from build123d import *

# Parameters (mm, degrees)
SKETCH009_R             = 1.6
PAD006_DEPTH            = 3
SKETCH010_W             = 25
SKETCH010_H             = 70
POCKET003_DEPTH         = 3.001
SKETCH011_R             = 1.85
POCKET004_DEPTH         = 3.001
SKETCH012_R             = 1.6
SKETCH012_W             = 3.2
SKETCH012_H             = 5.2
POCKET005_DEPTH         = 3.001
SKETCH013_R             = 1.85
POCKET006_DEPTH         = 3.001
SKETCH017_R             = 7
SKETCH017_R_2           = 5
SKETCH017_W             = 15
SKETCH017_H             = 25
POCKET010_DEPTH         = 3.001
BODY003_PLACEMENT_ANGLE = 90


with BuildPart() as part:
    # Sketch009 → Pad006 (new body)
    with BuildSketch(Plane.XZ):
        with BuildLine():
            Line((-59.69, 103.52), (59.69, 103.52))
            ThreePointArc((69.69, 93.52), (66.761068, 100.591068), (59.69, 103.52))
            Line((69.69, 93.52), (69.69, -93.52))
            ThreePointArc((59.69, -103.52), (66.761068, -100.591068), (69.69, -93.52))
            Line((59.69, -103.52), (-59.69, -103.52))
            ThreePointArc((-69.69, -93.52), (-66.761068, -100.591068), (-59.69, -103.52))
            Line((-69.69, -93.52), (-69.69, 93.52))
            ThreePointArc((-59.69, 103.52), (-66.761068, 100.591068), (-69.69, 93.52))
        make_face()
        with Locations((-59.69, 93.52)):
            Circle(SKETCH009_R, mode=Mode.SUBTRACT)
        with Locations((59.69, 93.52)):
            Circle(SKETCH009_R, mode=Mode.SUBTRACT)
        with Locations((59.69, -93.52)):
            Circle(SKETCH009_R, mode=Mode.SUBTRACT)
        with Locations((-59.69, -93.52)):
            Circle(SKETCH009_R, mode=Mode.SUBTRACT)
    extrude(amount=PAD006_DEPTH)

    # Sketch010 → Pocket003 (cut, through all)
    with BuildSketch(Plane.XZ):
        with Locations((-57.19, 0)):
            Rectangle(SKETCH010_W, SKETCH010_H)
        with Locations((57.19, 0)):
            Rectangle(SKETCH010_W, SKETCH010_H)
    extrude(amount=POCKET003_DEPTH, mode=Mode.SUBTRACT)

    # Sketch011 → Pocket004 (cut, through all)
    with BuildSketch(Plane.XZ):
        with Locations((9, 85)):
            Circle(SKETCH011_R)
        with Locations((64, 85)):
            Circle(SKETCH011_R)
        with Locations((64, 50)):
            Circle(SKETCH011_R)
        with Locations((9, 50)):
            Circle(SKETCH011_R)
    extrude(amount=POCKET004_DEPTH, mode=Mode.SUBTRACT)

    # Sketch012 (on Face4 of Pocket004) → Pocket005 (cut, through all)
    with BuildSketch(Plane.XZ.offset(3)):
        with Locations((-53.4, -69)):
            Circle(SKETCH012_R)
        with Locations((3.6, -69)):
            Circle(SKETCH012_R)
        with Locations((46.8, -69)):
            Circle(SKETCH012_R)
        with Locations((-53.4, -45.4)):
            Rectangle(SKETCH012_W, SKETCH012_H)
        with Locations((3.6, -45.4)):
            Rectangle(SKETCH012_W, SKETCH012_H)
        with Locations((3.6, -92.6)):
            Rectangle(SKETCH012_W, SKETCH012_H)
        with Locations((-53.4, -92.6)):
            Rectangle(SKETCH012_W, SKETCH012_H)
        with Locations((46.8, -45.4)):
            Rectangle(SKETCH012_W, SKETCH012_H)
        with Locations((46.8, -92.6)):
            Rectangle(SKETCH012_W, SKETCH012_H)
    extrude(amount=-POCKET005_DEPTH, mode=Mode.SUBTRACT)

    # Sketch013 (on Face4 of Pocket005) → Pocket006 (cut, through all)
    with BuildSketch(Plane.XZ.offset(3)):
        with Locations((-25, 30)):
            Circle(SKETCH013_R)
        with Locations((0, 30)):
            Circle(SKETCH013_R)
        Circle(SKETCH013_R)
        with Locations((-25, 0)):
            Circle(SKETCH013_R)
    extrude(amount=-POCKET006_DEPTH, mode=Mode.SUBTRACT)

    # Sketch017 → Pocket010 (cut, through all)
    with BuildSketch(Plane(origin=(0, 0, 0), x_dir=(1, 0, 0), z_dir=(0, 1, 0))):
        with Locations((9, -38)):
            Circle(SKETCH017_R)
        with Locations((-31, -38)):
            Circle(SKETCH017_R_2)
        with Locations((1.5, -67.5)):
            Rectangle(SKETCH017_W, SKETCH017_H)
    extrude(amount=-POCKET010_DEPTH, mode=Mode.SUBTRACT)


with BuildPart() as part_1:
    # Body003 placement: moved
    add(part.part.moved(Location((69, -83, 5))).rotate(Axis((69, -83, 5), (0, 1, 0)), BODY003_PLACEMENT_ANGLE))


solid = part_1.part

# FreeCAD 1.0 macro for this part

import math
import FreeCAD as App
import Part
import Sketcher
from FreeCAD import Vector

doc = App.newDocument("Part")
params = doc.addObject("Spreadsheet::Sheet", "Params")
for row, (alias, value) in enumerate([
    ("sketch1_radius", "9.999999 mm"),
    ("sketch1_diameter", "3.2 mm"),
    ("sketch1_width", "119.38 mm"),
    ("sketch1_height", "187.04 mm"),
    ("pad1_length", "3 mm"),
    ("sketch2_width", "25 mm"),
    ("sketch2_height", "70 mm"),
    ("sketch3_diameter", "3.7 mm"),
    ("sketch4_diameter", "3.2 mm"),
    ("sketch4_width", "3.2 mm"),
    ("sketch4_height", "5.2 mm"),
    ("sketch5_diameter", "3.7 mm"),
    ("sketch6_diameter", "14 mm"),
    ("sketch6_diameter2", "10 mm"),
    ("sketch6_width", "15 mm"),
    ("sketch6_height", "25 mm"),
], start=1):
    params.set(f"A{row}", alias)
    params.set(f"B{row}", "=" + value)
    params.setAlias(f"B{row}", alias)

body = doc.addObject("PartDesign::Body", "Body")

sketch1 = doc.addObject("Sketcher::SketchObject", "Sketch")
body.addObject(sketch1)
sketch1.AttachmentSupport = (doc.XZ_Plane, [""])
sketch1.MapMode = "FlatFace"
sketch1.addGeometry(Part.LineSegment(Vector(59.7, 103.5, 0), Vector(-59.7, 103.5, 0)), False)
sketch1.addGeometry(Part.ArcOfCircle(Part.Circle(Vector(-59.7, 93.5, 0), Vector(0, 0, 1), 10), math.radians(90), math.radians(180)), False)
sketch1.addGeometry(Part.LineSegment(Vector(-69.7, 93.5, 0), Vector(-69.7, -93.5, 0)), False)
sketch1.addGeometry(Part.ArcOfCircle(Part.Circle(Vector(-59.7, -93.5, 0), Vector(0, 0, 1), 10), math.radians(180), math.radians(270)), False)
sketch1.addGeometry(Part.LineSegment(Vector(-59.7, -103.5, 0), Vector(59.7, -103.5, 0)), False)
sketch1.addGeometry(Part.ArcOfCircle(Part.Circle(Vector(59.7, -93.5, 0), Vector(0, 0, 1), 10), math.radians(-90), math.radians(0)), False)
sketch1.addGeometry(Part.LineSegment(Vector(69.7, -93.5, 0), Vector(69.7, 93.5, 0)), False)
sketch1.addGeometry(Part.ArcOfCircle(Part.Circle(Vector(59.7, 93.5, 0), Vector(0, 0, 1), 10), math.radians(0), math.radians(90)), False)
sketch1.addGeometry(Part.Circle(Vector(59.7, -93.5, 0), Vector(0, 0, 1), 1.6), False)
sketch1.addGeometry(Part.Circle(Vector(-59.7, -93.5, 0), Vector(0, 0, 1), 1.6), False)
sketch1.addGeometry(Part.Circle(Vector(59.7, 93.5, 0), Vector(0, 0, 1), 1.6), False)
sketch1.addGeometry(Part.Circle(Vector(-59.7, 93.5, 0), Vector(0, 0, 1), 1.6), False)
sketch1.addConstraint(Sketcher.Constraint("Tangent", 0, 2, 1, 1))
sketch1.addConstraint(Sketcher.Constraint("Tangent", 1, 2, 2, 1))
sketch1.addConstraint(Sketcher.Constraint("Tangent", 2, 2, 3, 1))
sketch1.addConstraint(Sketcher.Constraint("Tangent", 3, 2, 4, 1))
sketch1.addConstraint(Sketcher.Constraint("Tangent", 4, 2, 5, 1))
sketch1.addConstraint(Sketcher.Constraint("Tangent", 5, 2, 6, 1))
sketch1.addConstraint(Sketcher.Constraint("Tangent", 6, 2, 7, 1))
sketch1.addConstraint(Sketcher.Constraint("Tangent", 7, 2, 0, 1))
sketch1.addConstraint(Sketcher.Constraint("Horizontal", 0))
sketch1.addConstraint(Sketcher.Constraint("Vertical", 2))
sketch1.addConstraint(Sketcher.Constraint("Horizontal", 4))
sketch1.addConstraint(Sketcher.Constraint("Vertical", 6))
sketch1.addConstraint(Sketcher.Constraint("Coincident", 8, 3, 5, 3))
sketch1.addConstraint(Sketcher.Constraint("Coincident", 9, 3, 3, 3))
sketch1.addConstraint(Sketcher.Constraint("Coincident", 10, 3, 7, 3))
sketch1.addConstraint(Sketcher.Constraint("Coincident", 11, 3, 1, 3))
sketch1.addConstraint(Sketcher.Constraint("Equal", 1, 3))
sketch1.addConstraint(Sketcher.Constraint("Equal", 3, 5))
sketch1.addConstraint(Sketcher.Constraint("Equal", 5, 7))
sketch1.addConstraint(Sketcher.Constraint("Equal", 8, 9))
sketch1.addConstraint(Sketcher.Constraint("Equal", 9, 10))
sketch1.addConstraint(Sketcher.Constraint("Equal", 10, 11))
sketch1.addConstraint(Sketcher.Constraint("Symmetric", 1, 3, 5, 3, -1, 1))
sketch1.addConstraint(Sketcher.Constraint("Radius", 1, 9.999999))
sketch1.addConstraint(Sketcher.Constraint("Diameter", 8, 3.2))
sketch1.addConstraint(Sketcher.Constraint("DistanceX", 0, 2, 0, 1, 119.38))
sketch1.addConstraint(Sketcher.Constraint("DistanceY", 2, 2, 2, 1, 187.04))
sketch1.setExpression("Constraints[23]", "Params.sketch1_radius")
sketch1.setExpression("Constraints[24]", "Params.sketch1_diameter")
sketch1.setExpression("Constraints[25]", "Params.sketch1_width")
sketch1.setExpression("Constraints[26]", "Params.sketch1_height")
pad1 = doc.addObject("PartDesign::Pad", "Pad")
body.addObject(pad1)
pad1.Profile = sketch1
pad1.setExpression("Length", "Params.pad1_length")

sketch2 = doc.addObject("Sketcher::SketchObject", "Sketch001")
body.addObject(sketch2)
sketch2.AttachmentSupport = (doc.XZ_Plane, [""])
sketch2.MapMode = "FlatFace"
sketch2.addGeometry(Part.LineSegment(Vector(-70, 35, 0), Vector(-70, -35, 0)), False)
sketch2.addGeometry(Part.LineSegment(Vector(-70, -35, 0), Vector(-45, -35, 0)), False)
sketch2.addGeometry(Part.LineSegment(Vector(-45, -35, 0), Vector(-45, 35, 0)), False)
sketch2.addGeometry(Part.LineSegment(Vector(-45, 35, 0), Vector(-70, 35, 0)), False)
sketch2.addGeometry(Part.LineSegment(Vector(45, 35, 0), Vector(45, -35, 0)), False)
sketch2.addGeometry(Part.LineSegment(Vector(45, -35, 0), Vector(70, -35, 0)), False)
sketch2.addGeometry(Part.LineSegment(Vector(70, -35, 0), Vector(70, 35, 0)), False)
sketch2.addGeometry(Part.LineSegment(Vector(70, 35, 0), Vector(45, 35, 0)), False)
sketch2.addConstraint(Sketcher.Constraint("Coincident", 0, 2, 1, 1))
sketch2.addConstraint(Sketcher.Constraint("Coincident", 1, 2, 2, 1))
sketch2.addConstraint(Sketcher.Constraint("Coincident", 2, 2, 3, 1))
sketch2.addConstraint(Sketcher.Constraint("Coincident", 3, 2, 0, 1))
sketch2.addConstraint(Sketcher.Constraint("Coincident", 4, 2, 5, 1))
sketch2.addConstraint(Sketcher.Constraint("Coincident", 5, 2, 6, 1))
sketch2.addConstraint(Sketcher.Constraint("Coincident", 6, 2, 7, 1))
sketch2.addConstraint(Sketcher.Constraint("Coincident", 7, 2, 4, 1))
sketch2.addConstraint(Sketcher.Constraint("Vertical", 0))
sketch2.addConstraint(Sketcher.Constraint("Horizontal", 1))
sketch2.addConstraint(Sketcher.Constraint("Vertical", 2))
sketch2.addConstraint(Sketcher.Constraint("Horizontal", 3))
sketch2.addConstraint(Sketcher.Constraint("Vertical", 4))
sketch2.addConstraint(Sketcher.Constraint("Horizontal", 5))
sketch2.addConstraint(Sketcher.Constraint("Vertical", 6))
sketch2.addConstraint(Sketcher.Constraint("Horizontal", 7))
sketch2.addConstraint(Sketcher.Constraint("Symmetric", 2, 2, 4, 2, -1, 1))
sketch2.addConstraint(Sketcher.Constraint("Symmetric", 0, 2, 6, 2, -1, 1))
sketch2.addConstraint(Sketcher.Constraint("Horizontal", 1, 2, 4, 2))
sketch2.addConstraint(Sketcher.Constraint("DistanceX", 1, 1, 1, 2, 25.0))
sketch2.addConstraint(Sketcher.Constraint("DistanceY", 0, 2, 0, 1, 70.0))
sketch2.addConstraint(Sketcher.Constraint("DistanceX", 0, 2, -1, 1, 69.69))
sketch2.setExpression("Constraints[19]", "Params.sketch2_width")
sketch2.setExpression("Constraints[20]", "Params.sketch2_height")
pocket1 = doc.addObject("PartDesign::Pocket", "Pocket")
body.addObject(pocket1)
pocket1.Profile = sketch2
pocket1.Type = "ThroughAll"
pocket1.Reversed = True

sketch3 = doc.addObject("Sketcher::SketchObject", "Sketch002")
body.addObject(sketch3)
sketch3.AttachmentSupport = (doc.XZ_Plane, [""])
sketch3.MapMode = "FlatFace"
sketch3.addGeometry(Part.Circle(Vector(9, 85, 0), Vector(0, 0, 1), 1.9), False)
sketch3.addGeometry(Part.Circle(Vector(64, 85, 0), Vector(0, 0, 1), 1.9), False)
sketch3.addGeometry(Part.Circle(Vector(64, 50, 0), Vector(0, 0, 1), 1.9), False)
sketch3.addGeometry(Part.Circle(Vector(9, 50, 0), Vector(0, 0, 1), 1.9), False)
sketch3.addConstraint(Sketcher.Constraint("Equal", 0, 1))
sketch3.addConstraint(Sketcher.Constraint("Equal", 1, 2))
sketch3.addConstraint(Sketcher.Constraint("Equal", 2, 3))
sketch3.addConstraint(Sketcher.Constraint("Horizontal", 0, 3, 1, 3))
sketch3.addConstraint(Sketcher.Constraint("Horizontal", 2, 3, 3, 3))
sketch3.addConstraint(Sketcher.Constraint("Vertical", 1, 3, 2, 3))
sketch3.addConstraint(Sketcher.Constraint("Vertical", 0, 3, 3, 3))
sketch3.addConstraint(Sketcher.Constraint("Diameter", 0, 3.7))
sketch3.addConstraint(Sketcher.Constraint("DistanceX", -1, 1, 0, 3, 9.0))
sketch3.addConstraint(Sketcher.Constraint("DistanceY", -1, 1, 0, 3, 85.0))
sketch3.addConstraint(Sketcher.Constraint("DistanceX", -1, 1, 1, 3, 64.0))
sketch3.addConstraint(Sketcher.Constraint("DistanceY", -1, 1, 2, 3, 50.0))
sketch3.setExpression("Constraints[7]", "Params.sketch3_diameter")
pocket2 = doc.addObject("PartDesign::Pocket", "Pocket001")
body.addObject(pocket2)
pocket2.Profile = sketch3
pocket2.Type = "ThroughAll"
pocket2.Reversed = True

sketch4 = doc.addObject("Sketcher::SketchObject", "Sketch003")
body.addObject(sketch4)
sketch4.AttachmentSupport = (doc.XZ_Plane, [""])
sketch4.MapMode = "FlatFace"
sketch4.AttachmentOffset = App.Placement(Vector(0, 0, 3), App.Rotation())
sketch4.addGeometry(Part.Circle(Vector(-53.4, -69, 0), Vector(0, 0, 1), 1.6), False)
sketch4.addGeometry(Part.Circle(Vector(3.6, -69, 0), Vector(0, 0, 1), 1.6), False)
sketch4.addGeometry(Part.Circle(Vector(46.8, -69, 0), Vector(0, 0, 1), 1.6), False)
sketch4.addGeometry(Part.LineSegment(Vector(-55, -42.8, 0), Vector(-55, -48, 0)), False)
sketch4.addGeometry(Part.LineSegment(Vector(-55, -48, 0), Vector(-51.8, -48, 0)), False)
sketch4.addGeometry(Part.LineSegment(Vector(-51.8, -48, 0), Vector(-51.8, -42.8, 0)), False)
sketch4.addGeometry(Part.LineSegment(Vector(-51.8, -42.8, 0), Vector(-55, -42.8, 0)), False)
sketch4.addGeometry(Part.LineSegment(Vector(2, -42.8, 0), Vector(2, -48, 0)), False)
sketch4.addGeometry(Part.LineSegment(Vector(2, -48, 0), Vector(5.2, -48, 0)), False)
sketch4.addGeometry(Part.LineSegment(Vector(5.2, -48, 0), Vector(5.2, -42.8, 0)), False)
sketch4.addGeometry(Part.LineSegment(Vector(5.2, -42.8, 0), Vector(2, -42.8, 0)), False)
sketch4.addGeometry(Part.LineSegment(Vector(2, -90, 0), Vector(2, -95.2, 0)), False)
sketch4.addGeometry(Part.LineSegment(Vector(2, -95.2, 0), Vector(5.2, -95.2, 0)), False)
sketch4.addGeometry(Part.LineSegment(Vector(5.2, -95.2, 0), Vector(5.2, -90, 0)), False)
sketch4.addGeometry(Part.LineSegment(Vector(5.2, -90, 0), Vector(2, -90, 0)), False)
sketch4.addGeometry(Part.LineSegment(Vector(-55, -90, 0), Vector(-55, -95.2, 0)), False)
sketch4.addGeometry(Part.LineSegment(Vector(-55, -95.2, 0), Vector(-51.8, -95.2, 0)), False)
sketch4.addGeometry(Part.LineSegment(Vector(-51.8, -95.2, 0), Vector(-51.8, -90, 0)), False)
sketch4.addGeometry(Part.LineSegment(Vector(-51.8, -90, 0), Vector(-55, -90, 0)), False)
sketch4.addGeometry(Part.LineSegment(Vector(45.2, -42.8, 0), Vector(45.2, -48, 0)), False)
sketch4.addGeometry(Part.LineSegment(Vector(45.2, -48, 0), Vector(48.4, -48, 0)), False)
sketch4.addGeometry(Part.LineSegment(Vector(48.4, -48, 0), Vector(48.4, -42.8, 0)), False)
sketch4.addGeometry(Part.LineSegment(Vector(48.4, -42.8, 0), Vector(45.2, -42.8, 0)), False)
sketch4.addGeometry(Part.LineSegment(Vector(45.2, -90, 0), Vector(45.2, -95.2, 0)), False)
sketch4.addGeometry(Part.LineSegment(Vector(45.2, -95.2, 0), Vector(48.4, -95.2, 0)), False)
sketch4.addGeometry(Part.LineSegment(Vector(48.4, -95.2, 0), Vector(48.4, -90, 0)), False)
sketch4.addGeometry(Part.LineSegment(Vector(48.4, -90, 0), Vector(45.2, -90, 0)), False)
sketch4.addConstraint(Sketcher.Constraint("Coincident", 3, 2, 4, 1))
sketch4.addConstraint(Sketcher.Constraint("Coincident", 4, 2, 5, 1))
sketch4.addConstraint(Sketcher.Constraint("Coincident", 5, 2, 6, 1))
sketch4.addConstraint(Sketcher.Constraint("Coincident", 6, 2, 3, 1))
sketch4.addConstraint(Sketcher.Constraint("Coincident", 7, 2, 8, 1))
sketch4.addConstraint(Sketcher.Constraint("Coincident", 8, 2, 9, 1))
sketch4.addConstraint(Sketcher.Constraint("Coincident", 9, 2, 10, 1))
sketch4.addConstraint(Sketcher.Constraint("Coincident", 10, 2, 7, 1))
sketch4.addConstraint(Sketcher.Constraint("Coincident", 11, 2, 12, 1))
sketch4.addConstraint(Sketcher.Constraint("Coincident", 12, 2, 13, 1))
sketch4.addConstraint(Sketcher.Constraint("Coincident", 13, 2, 14, 1))
sketch4.addConstraint(Sketcher.Constraint("Coincident", 14, 2, 11, 1))
sketch4.addConstraint(Sketcher.Constraint("Coincident", 15, 2, 16, 1))
sketch4.addConstraint(Sketcher.Constraint("Coincident", 16, 2, 17, 1))
sketch4.addConstraint(Sketcher.Constraint("Coincident", 17, 2, 18, 1))
sketch4.addConstraint(Sketcher.Constraint("Coincident", 18, 2, 15, 1))
sketch4.addConstraint(Sketcher.Constraint("Coincident", 19, 2, 20, 1))
sketch4.addConstraint(Sketcher.Constraint("Coincident", 20, 2, 21, 1))
sketch4.addConstraint(Sketcher.Constraint("Coincident", 21, 2, 22, 1))
sketch4.addConstraint(Sketcher.Constraint("Coincident", 22, 2, 19, 1))
sketch4.addConstraint(Sketcher.Constraint("Coincident", 23, 2, 24, 1))
sketch4.addConstraint(Sketcher.Constraint("Coincident", 24, 2, 25, 1))
sketch4.addConstraint(Sketcher.Constraint("Coincident", 25, 2, 26, 1))
sketch4.addConstraint(Sketcher.Constraint("Coincident", 26, 2, 23, 1))
sketch4.addConstraint(Sketcher.Constraint("Vertical", 3))
sketch4.addConstraint(Sketcher.Constraint("Horizontal", 4))
sketch4.addConstraint(Sketcher.Constraint("Vertical", 5))
sketch4.addConstraint(Sketcher.Constraint("Horizontal", 6))
sketch4.addConstraint(Sketcher.Constraint("Vertical", 7))
sketch4.addConstraint(Sketcher.Constraint("Horizontal", 8))
sketch4.addConstraint(Sketcher.Constraint("Vertical", 9))
sketch4.addConstraint(Sketcher.Constraint("Horizontal", 10))
sketch4.addConstraint(Sketcher.Constraint("Vertical", 11))
sketch4.addConstraint(Sketcher.Constraint("Horizontal", 12))
sketch4.addConstraint(Sketcher.Constraint("Vertical", 13))
sketch4.addConstraint(Sketcher.Constraint("Horizontal", 14))
sketch4.addConstraint(Sketcher.Constraint("Vertical", 15))
sketch4.addConstraint(Sketcher.Constraint("Horizontal", 16))
sketch4.addConstraint(Sketcher.Constraint("Vertical", 17))
sketch4.addConstraint(Sketcher.Constraint("Horizontal", 18))
sketch4.addConstraint(Sketcher.Constraint("Vertical", 19))
sketch4.addConstraint(Sketcher.Constraint("Horizontal", 20))
sketch4.addConstraint(Sketcher.Constraint("Vertical", 21))
sketch4.addConstraint(Sketcher.Constraint("Horizontal", 22))
sketch4.addConstraint(Sketcher.Constraint("Vertical", 23))
sketch4.addConstraint(Sketcher.Constraint("Horizontal", 24))
sketch4.addConstraint(Sketcher.Constraint("Vertical", 25))
sketch4.addConstraint(Sketcher.Constraint("Horizontal", 26))
sketch4.addConstraint(Sketcher.Constraint("Equal", 0, 1))
sketch4.addConstraint(Sketcher.Constraint("Equal", 1, 2))
sketch4.addConstraint(Sketcher.Constraint("Horizontal", 0, 3, 1, 3))
sketch4.addConstraint(Sketcher.Constraint("Horizontal", 1, 3, 2, 3))
sketch4.addConstraint(Sketcher.Constraint("Horizontal", 4, 2, 7, 2))
sketch4.addConstraint(Sketcher.Constraint("Horizontal", 6, 2, 9, 2))
sketch4.addConstraint(Sketcher.Constraint("Horizontal", 12, 2, 15, 2))
sketch4.addConstraint(Sketcher.Constraint("Horizontal", 14, 2, 17, 2))
sketch4.addConstraint(Sketcher.Constraint("Horizontal", 8, 2, 19, 2))
sketch4.addConstraint(Sketcher.Constraint("Horizontal", 10, 2, 21, 2))
sketch4.addConstraint(Sketcher.Constraint("Horizontal", 16, 2, 23, 2))
sketch4.addConstraint(Sketcher.Constraint("Horizontal", 18, 2, 25, 2))
sketch4.addConstraint(Sketcher.Constraint("Vertical", 10, 2, 11, 2))
sketch4.addConstraint(Sketcher.Constraint("Vertical", 9, 2, 12, 2))
sketch4.addConstraint(Sketcher.Constraint("Vertical", 6, 2, 15, 2))
sketch4.addConstraint(Sketcher.Constraint("Vertical", 5, 2, 16, 2))
sketch4.addConstraint(Sketcher.Constraint("Vertical", 22, 2, 23, 2))
sketch4.addConstraint(Sketcher.Constraint("Vertical", 21, 2, 24, 2))
sketch4.addConstraint(Sketcher.Constraint("Equal", 6, 8))
sketch4.addConstraint(Sketcher.Constraint("Equal", 18, 20))
sketch4.addConstraint(Sketcher.Constraint("Equal", 9, 11))
sketch4.addConstraint(Sketcher.Constraint("Diameter", 0, 3.2))
sketch4.addConstraint(Sketcher.Constraint("DistanceX", 4, 1, 4, 2, 3.2))
sketch4.addConstraint(Sketcher.Constraint("DistanceY", 3, 2, 3, 1, 5.2))
sketch4.addConstraint(Sketcher.Constraint("DistanceY", 0, 3, -1, 1, 69.0))
sketch4.addConstraint(Sketcher.Constraint("DistanceX", 3, 2, -1, 1, 55.0))
sketch4.addConstraint(Sketcher.Constraint("DistanceY", 3, 2, -1, 1, 48.0))
sketch4.addConstraint(Sketcher.Constraint("DistanceX", -1, 1, 7, 2, 2.0))
sketch4.addConstraint(Sketcher.Constraint("DistanceY", 13, 2, -1, 1, 90.0))
sketch4.addConstraint(Sketcher.Constraint("DistanceX", 0, 3, 1, 3, 57.0))
sketch4.addConstraint(Sketcher.Constraint("DistanceX", 8, 2, 19, 2, 40.0))
sketch4.addConstraint(Sketcher.Constraint("DistanceX", 0, 3, -1, 1, 53.4))
sketch4.addConstraint(Sketcher.Constraint("DistanceX", -1, 1, 2, 3, 46.8))
sketch4.setExpression("Constraints[69]", "Params.sketch4_diameter")
sketch4.setExpression("Constraints[70]", "Params.sketch4_width")
sketch4.setExpression("Constraints[71]", "Params.sketch4_height")
pocket3 = doc.addObject("PartDesign::Pocket", "Pocket002")
body.addObject(pocket3)
pocket3.Profile = sketch4
pocket3.Type = "ThroughAll"

sketch5 = doc.addObject("Sketcher::SketchObject", "Sketch004")
body.addObject(sketch5)
sketch5.AttachmentSupport = (doc.XZ_Plane, [""])
sketch5.MapMode = "FlatFace"
sketch5.AttachmentOffset = App.Placement(Vector(0, 0, 3), App.Rotation())
sketch5.addGeometry(Part.Circle(Vector(-25, 30, 0), Vector(0, 0, 1), 1.9), False)
sketch5.addGeometry(Part.Circle(Vector(0, 30, 0), Vector(0, 0, 1), 1.9), False)
sketch5.addGeometry(Part.Circle(Vector(0, 0, 0), Vector(0, 0, 1), 1.9), False)
sketch5.addGeometry(Part.Circle(Vector(-25, 0, 0), Vector(0, 0, 1), 1.9), False)
sketch5.addConstraint(Sketcher.Constraint("Coincident", 2, 3, -1, 1))
sketch5.addConstraint(Sketcher.Constraint("Equal", 0, 1))
sketch5.addConstraint(Sketcher.Constraint("Equal", 1, 2))
sketch5.addConstraint(Sketcher.Constraint("Equal", 2, 3))
sketch5.addConstraint(Sketcher.Constraint("PointOnObject", 1, 3, -2))
sketch5.addConstraint(Sketcher.Constraint("PointOnObject", 3, 3, -1))
sketch5.addConstraint(Sketcher.Constraint("Horizontal", 0, 3, 1, 3))
sketch5.addConstraint(Sketcher.Constraint("Vertical", 0, 3, 3, 3))
sketch5.addConstraint(Sketcher.Constraint("Diameter", 0, 3.7))
sketch5.addConstraint(Sketcher.Constraint("DistanceX", 0, 3, -1, 1, 25.0))
sketch5.addConstraint(Sketcher.Constraint("DistanceY", -1, 1, 0, 3, 30.0))
sketch5.setExpression("Constraints[8]", "Params.sketch5_diameter")
pocket4 = doc.addObject("PartDesign::Pocket", "Pocket003")
body.addObject(pocket4)
pocket4.Profile = sketch5
pocket4.Type = "ThroughAll"

sketch6 = doc.addObject("Sketcher::SketchObject", "Sketch005")
body.addObject(sketch6)
sketch6.AttachmentSupport = (doc.XZ_Plane, [""])
sketch6.MapMode = "FlatFace"
sketch6.addGeometry(Part.Circle(Vector(9, 38, 0), Vector(0, 0, 1), 7), False)
sketch6.addGeometry(Part.Circle(Vector(-31, 38, 0), Vector(0, 0, 1), 5), False)
sketch6.addGeometry(Part.LineSegment(Vector(-6, 55, 0), Vector(-6, 80, 0)), False)
sketch6.addGeometry(Part.LineSegment(Vector(-6, 80, 0), Vector(9, 80, 0)), False)
sketch6.addGeometry(Part.LineSegment(Vector(9, 80, 0), Vector(9, 55, 0)), False)
sketch6.addGeometry(Part.LineSegment(Vector(9, 55, 0), Vector(-6, 55, 0)), False)
sketch6.addConstraint(Sketcher.Constraint("Coincident", 2, 2, 3, 1))
sketch6.addConstraint(Sketcher.Constraint("Coincident", 3, 2, 4, 1))
sketch6.addConstraint(Sketcher.Constraint("Coincident", 4, 2, 5, 1))
sketch6.addConstraint(Sketcher.Constraint("Coincident", 5, 2, 2, 1))
sketch6.addConstraint(Sketcher.Constraint("Vertical", 2))
sketch6.addConstraint(Sketcher.Constraint("Horizontal", 3))
sketch6.addConstraint(Sketcher.Constraint("Vertical", 4))
sketch6.addConstraint(Sketcher.Constraint("Horizontal", 5))
sketch6.addConstraint(Sketcher.Constraint("Horizontal", 0, 3, 1, 3))
sketch6.addConstraint(Sketcher.Constraint("Vertical", 0, 3, 3, 2))
sketch6.addConstraint(Sketcher.Constraint("Diameter", 0, 14.0))
sketch6.addConstraint(Sketcher.Constraint("Diameter", 1, 10.0))
sketch6.addConstraint(Sketcher.Constraint("DistanceX", 3, 1, 3, 2, 15.0))
sketch6.addConstraint(Sketcher.Constraint("DistanceY", 2, 1, 2, 2, 25.0))
sketch6.addConstraint(Sketcher.Constraint("DistanceX", -1, 1, 0, 3, 9.0))
sketch6.addConstraint(Sketcher.Constraint("DistanceY", -1, 1, 0, 3, 38.0))
sketch6.addConstraint(Sketcher.Constraint("DistanceX", 1, 3, -1, 1, 31.0))
sketch6.addConstraint(Sketcher.Constraint("DistanceY", -1, 1, 2, 2, 80.0))
sketch6.setExpression("Constraints[10]", "Params.sketch6_diameter")
sketch6.setExpression("Constraints[11]", "Params.sketch6_diameter2")
sketch6.setExpression("Constraints[12]", "Params.sketch6_width")
sketch6.setExpression("Constraints[13]", "Params.sketch6_height")
pocket5 = doc.addObject("PartDesign::Pocket", "Pocket004")
body.addObject(pocket5)
pocket5.Profile = sketch6
pocket5.Type = "ThroughAll"
pocket5.Reversed = True
body2 = doc.addObject("PartDesign::Body", "Body001")
doc.recompute()

body.Placement = App.Placement(Vector(69, -83, 5), App.Rotation(Vector(0, 1, 0), 90))
boolean = doc.addObject("PartDesign::Boolean", "Boolean")
body2.addObject(boolean)
boolean.Type = "Fuse"
boolean.addObjects([body])

doc.recompute()
